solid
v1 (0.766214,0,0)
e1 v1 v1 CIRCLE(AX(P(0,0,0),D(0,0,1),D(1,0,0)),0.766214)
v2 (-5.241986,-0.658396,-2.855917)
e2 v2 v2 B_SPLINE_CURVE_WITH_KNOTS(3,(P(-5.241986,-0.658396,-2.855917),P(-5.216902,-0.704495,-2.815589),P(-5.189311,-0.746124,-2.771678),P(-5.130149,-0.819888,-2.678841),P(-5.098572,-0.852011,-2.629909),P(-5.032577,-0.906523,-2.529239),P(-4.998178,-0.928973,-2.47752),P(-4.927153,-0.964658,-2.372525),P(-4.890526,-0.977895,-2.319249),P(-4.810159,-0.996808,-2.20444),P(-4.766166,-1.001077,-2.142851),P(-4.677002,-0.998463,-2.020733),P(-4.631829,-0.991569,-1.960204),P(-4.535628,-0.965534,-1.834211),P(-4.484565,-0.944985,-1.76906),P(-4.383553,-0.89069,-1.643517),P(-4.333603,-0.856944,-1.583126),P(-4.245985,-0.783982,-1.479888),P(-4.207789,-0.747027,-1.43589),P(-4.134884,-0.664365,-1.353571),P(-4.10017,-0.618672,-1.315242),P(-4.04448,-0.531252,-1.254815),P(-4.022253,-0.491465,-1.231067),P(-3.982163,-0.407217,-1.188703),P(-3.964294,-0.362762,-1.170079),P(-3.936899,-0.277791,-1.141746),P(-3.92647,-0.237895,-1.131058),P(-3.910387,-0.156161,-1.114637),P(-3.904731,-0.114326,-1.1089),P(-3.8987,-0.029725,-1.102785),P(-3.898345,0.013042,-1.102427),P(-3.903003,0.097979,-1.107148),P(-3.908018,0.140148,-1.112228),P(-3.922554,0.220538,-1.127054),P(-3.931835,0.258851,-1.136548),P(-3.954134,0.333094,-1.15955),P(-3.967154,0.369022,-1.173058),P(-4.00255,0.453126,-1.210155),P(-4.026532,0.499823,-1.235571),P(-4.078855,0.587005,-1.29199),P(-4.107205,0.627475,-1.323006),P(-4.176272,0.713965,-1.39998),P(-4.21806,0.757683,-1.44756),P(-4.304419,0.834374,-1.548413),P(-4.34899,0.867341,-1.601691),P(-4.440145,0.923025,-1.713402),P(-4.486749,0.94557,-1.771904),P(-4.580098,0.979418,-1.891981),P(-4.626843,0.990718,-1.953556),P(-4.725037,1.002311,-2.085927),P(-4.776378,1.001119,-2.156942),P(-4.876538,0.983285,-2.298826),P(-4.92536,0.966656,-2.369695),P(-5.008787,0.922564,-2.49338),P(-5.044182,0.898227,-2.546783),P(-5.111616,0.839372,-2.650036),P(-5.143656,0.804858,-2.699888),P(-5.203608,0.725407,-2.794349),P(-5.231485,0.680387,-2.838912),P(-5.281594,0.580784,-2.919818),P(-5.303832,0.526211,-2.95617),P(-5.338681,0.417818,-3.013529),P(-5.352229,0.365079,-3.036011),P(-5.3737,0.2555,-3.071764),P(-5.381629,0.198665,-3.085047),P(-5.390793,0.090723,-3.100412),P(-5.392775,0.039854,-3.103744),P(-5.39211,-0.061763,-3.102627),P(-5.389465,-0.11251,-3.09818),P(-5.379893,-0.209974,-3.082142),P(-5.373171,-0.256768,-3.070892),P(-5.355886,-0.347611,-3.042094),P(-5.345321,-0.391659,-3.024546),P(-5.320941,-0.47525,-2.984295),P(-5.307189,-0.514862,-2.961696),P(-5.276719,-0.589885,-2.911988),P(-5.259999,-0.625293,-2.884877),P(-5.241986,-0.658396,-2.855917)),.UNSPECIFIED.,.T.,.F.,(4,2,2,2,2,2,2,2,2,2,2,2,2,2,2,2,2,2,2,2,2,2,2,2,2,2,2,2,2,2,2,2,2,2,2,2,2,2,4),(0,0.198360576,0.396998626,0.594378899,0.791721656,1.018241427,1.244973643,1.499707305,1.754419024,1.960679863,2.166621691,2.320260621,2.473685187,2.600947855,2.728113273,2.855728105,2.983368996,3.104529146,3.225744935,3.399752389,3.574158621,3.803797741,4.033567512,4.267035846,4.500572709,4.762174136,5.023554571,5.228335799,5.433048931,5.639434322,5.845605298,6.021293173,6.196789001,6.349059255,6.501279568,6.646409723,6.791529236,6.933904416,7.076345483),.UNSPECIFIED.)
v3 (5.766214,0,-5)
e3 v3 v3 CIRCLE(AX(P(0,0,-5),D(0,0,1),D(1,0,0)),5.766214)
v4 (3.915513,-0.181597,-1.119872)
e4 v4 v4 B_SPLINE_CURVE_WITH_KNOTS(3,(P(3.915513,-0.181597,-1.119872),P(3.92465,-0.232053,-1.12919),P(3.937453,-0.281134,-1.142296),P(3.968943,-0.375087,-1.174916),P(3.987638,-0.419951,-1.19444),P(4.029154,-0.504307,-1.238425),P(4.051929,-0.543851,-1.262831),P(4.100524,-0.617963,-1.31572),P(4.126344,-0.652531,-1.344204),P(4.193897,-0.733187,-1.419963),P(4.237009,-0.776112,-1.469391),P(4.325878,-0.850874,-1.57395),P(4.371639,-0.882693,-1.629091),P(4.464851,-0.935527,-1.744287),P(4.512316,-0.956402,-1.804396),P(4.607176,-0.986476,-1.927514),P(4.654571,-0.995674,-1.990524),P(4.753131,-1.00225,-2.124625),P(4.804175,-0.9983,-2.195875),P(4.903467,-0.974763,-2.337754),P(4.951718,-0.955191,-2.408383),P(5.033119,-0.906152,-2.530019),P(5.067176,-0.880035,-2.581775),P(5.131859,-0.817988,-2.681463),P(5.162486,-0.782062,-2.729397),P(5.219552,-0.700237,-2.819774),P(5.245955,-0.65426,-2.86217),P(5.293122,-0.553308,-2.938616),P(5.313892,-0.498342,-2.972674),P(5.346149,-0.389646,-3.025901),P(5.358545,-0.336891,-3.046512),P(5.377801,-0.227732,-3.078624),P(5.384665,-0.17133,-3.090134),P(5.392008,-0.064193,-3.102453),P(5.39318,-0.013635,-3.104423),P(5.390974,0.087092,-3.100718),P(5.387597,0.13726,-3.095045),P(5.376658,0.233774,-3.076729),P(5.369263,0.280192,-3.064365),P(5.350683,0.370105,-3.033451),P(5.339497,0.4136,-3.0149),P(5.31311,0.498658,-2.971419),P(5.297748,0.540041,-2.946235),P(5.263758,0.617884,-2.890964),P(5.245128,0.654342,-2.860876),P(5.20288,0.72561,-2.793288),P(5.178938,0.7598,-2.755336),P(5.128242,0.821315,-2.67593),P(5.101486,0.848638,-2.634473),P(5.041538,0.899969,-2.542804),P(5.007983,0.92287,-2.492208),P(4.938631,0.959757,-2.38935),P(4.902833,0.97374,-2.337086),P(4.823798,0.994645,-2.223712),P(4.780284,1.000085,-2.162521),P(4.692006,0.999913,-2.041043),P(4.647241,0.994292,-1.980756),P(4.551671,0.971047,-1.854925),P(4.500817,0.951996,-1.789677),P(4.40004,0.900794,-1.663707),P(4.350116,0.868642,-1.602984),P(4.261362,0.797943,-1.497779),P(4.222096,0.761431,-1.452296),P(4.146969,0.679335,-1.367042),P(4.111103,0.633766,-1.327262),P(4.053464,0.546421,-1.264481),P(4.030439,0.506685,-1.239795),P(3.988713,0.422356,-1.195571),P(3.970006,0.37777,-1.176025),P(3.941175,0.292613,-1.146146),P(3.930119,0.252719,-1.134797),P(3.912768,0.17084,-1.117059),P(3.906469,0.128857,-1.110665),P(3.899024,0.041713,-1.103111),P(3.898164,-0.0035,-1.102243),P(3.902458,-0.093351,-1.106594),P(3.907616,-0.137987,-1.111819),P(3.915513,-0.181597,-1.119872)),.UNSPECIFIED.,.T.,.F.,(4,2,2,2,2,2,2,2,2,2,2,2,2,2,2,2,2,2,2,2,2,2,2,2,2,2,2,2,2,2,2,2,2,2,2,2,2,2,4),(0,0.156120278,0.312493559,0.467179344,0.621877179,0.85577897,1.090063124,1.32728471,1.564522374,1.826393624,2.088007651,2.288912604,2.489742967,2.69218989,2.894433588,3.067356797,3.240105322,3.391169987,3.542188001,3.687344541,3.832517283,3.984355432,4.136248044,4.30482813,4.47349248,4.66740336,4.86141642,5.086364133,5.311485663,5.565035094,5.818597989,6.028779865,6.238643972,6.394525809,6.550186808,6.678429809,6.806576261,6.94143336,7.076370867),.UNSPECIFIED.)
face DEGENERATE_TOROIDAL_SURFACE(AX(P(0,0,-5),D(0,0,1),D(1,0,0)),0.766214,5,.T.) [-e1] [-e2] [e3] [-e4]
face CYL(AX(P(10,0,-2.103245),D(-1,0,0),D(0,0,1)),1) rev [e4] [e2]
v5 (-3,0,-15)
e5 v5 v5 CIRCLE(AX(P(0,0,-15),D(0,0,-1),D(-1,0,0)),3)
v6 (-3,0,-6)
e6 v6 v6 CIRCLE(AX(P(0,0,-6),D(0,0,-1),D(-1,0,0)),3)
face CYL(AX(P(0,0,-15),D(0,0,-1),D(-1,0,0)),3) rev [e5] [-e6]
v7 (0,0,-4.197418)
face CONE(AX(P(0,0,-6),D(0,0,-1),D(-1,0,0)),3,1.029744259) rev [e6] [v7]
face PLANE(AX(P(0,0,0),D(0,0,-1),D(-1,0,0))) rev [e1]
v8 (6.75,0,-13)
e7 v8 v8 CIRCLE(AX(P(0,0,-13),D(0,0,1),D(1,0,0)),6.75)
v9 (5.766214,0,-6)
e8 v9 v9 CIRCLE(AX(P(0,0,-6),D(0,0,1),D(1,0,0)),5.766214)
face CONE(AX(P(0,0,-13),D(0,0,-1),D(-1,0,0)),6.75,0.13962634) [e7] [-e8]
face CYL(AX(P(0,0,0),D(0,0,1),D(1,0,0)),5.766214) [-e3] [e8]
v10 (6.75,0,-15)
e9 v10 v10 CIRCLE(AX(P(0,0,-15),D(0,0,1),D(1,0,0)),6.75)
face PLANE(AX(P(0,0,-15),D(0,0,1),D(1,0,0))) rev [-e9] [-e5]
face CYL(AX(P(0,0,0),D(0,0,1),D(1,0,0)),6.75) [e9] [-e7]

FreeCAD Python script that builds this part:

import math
import FreeCAD as App
import Part
import Sketcher
Q = App.Units.Quantity

doc = App.newDocument("Part")
body = doc.addObject("PartDesign::Body", "Body")

# Sketch on XZ plane
sketch1 = body.newObject("Sketcher::SketchObject", "Sketch")
sketch1.AttachmentSupport = (doc.getObject("XZ_Plane"), [""])
sketch1.MapMode = "FlatFace"
sketch1.addGeometry([
    Part.LineSegment(App.Vector(-0.766214, 0, 0), App.Vector(0, 0, 0)),  # 0
    Part.LineSegment(App.Vector(0, 0, 0), App.Vector(0, -15, 0)),  # 1
    Part.LineSegment(App.Vector(0, -15, 0), App.Vector(-6.75, -15, 0)),  # 2
    Part.LineSegment(App.Vector(-6.75, -15, 0), App.Vector(-6.75, -13, 0)),  # 3
    Part.LineSegment(App.Vector(-6.75, -13, 0), App.Vector(-5.766214, -6, 0)),  # 4
    Part.LineSegment(App.Vector(-5.766214, -6, 0), App.Vector(-5.766214, -5, 0)),  # 5
    Part.ArcOfCircle(Part.Circle(App.Vector(-0.766214, -5, 0), App.Vector(0, 0, 1), 5), math.radians(90), math.radians(180)),  # 6
], False)
sketch1.addConstraint([
    Sketcher.Constraint("Coincident", 0, 2, 1, 1),
    Sketcher.Constraint("Coincident", 1, 2, 2, 1),
    Sketcher.Constraint("Coincident", 2, 2, 3, 1),
    Sketcher.Constraint("Coincident", 3, 2, 4, 1),
    Sketcher.Constraint("Coincident", 4, 2, 5, 1),
    Sketcher.Constraint("Tangent", 5, 2, 6, 2),
    Sketcher.Constraint("Tangent", 6, 1, 0, 1),
    Sketcher.Constraint("Horizontal", 0),
    Sketcher.Constraint("Vertical", 1),
    Sketcher.Constraint("Horizontal", 2),
    Sketcher.Constraint("Vertical", 3),
    Sketcher.Constraint("Vertical", 5),
    Sketcher.Constraint("Coincident", 0, 2, -1, 1),
    Sketcher.Constraint("Radius", 6, Q("5 mm")),
    Sketcher.Constraint("DistanceY", 1, 2, 1, 1, Q("15 mm")),
    Sketcher.Constraint("DistanceY", 3, 1, 3, 2, Q("2 mm")),
    Sketcher.Constraint("DistanceY", 5, 1, 5, 2, Q("1 mm")),
    Sketcher.Constraint("Angle", 4, Q("82 deg")),
    Sketcher.Constraint("DistanceX", 2, 2, 2, 1, Q("6.75 mm")),
])
revolution = body.newObject("PartDesign::Revolution", "Revolution")
revolution.Profile = sketch1
revolution.ReferenceAxis = (sketch1, ["V_Axis"])
revolution.Angle = 360

# Sketch on XY plane
sketch2 = body.newObject("Sketcher::SketchObject", "Sketch001")
sketch2.AttachmentSupport = (doc.getObject("XY_Plane"), [""])
sketch2.MapMode = "FlatFace"
sketch2.AttachmentOffset = App.Placement(App.Vector(0, 0, -15), App.Rotation())
sketch2.addGeometry(Part.Circle(App.Vector(0, 0, 0), App.Vector(0, 0, 1), 3), False)
sketch2.addConstraint([
    Sketcher.Constraint("Coincident", 0, 3, -1, 1),
    Sketcher.Constraint("Diameter", 0, Q("6 mm")),
])
doc.recompute()
hole = body.newObject("PartDesign::Hole", "Hole")
hole.Profile = sketch2
hole.ThreadType = "None"
hole.Diameter = 6
hole.DepthType = "Dimension"
hole.Depth = 9
hole.DrillPoint = "Angled"
hole.DrillPointAngle = 118
hole.Reversed = True

# Sketch on YZ plane
sketch3 = body.newObject("Sketcher::SketchObject", "Sketch002")
sketch3.AttachmentSupport = (doc.getObject("YZ_Plane"), [""])
sketch3.MapMode = "FlatFace"
sketch3.addGeometry(Part.Circle(App.Vector(0, -2.103245, 0), App.Vector(0, 0, 1), 1), False)
sketch3.addConstraint([
    Sketcher.Constraint("PointOnObject", 0, 3, -2),
    Sketcher.Constraint("Diameter", 0, Q("2 mm")),
    Sketcher.Constraint("DistanceY", 0, 3, -1, 1, Q("2.103245 mm")),
])
pocket1 = body.newObject("PartDesign::Pocket", "Pocket")
pocket1.Profile = sketch3
pocket1.Type = "ThroughAll"
pocket1.Midplane = True

doc.recompute()
